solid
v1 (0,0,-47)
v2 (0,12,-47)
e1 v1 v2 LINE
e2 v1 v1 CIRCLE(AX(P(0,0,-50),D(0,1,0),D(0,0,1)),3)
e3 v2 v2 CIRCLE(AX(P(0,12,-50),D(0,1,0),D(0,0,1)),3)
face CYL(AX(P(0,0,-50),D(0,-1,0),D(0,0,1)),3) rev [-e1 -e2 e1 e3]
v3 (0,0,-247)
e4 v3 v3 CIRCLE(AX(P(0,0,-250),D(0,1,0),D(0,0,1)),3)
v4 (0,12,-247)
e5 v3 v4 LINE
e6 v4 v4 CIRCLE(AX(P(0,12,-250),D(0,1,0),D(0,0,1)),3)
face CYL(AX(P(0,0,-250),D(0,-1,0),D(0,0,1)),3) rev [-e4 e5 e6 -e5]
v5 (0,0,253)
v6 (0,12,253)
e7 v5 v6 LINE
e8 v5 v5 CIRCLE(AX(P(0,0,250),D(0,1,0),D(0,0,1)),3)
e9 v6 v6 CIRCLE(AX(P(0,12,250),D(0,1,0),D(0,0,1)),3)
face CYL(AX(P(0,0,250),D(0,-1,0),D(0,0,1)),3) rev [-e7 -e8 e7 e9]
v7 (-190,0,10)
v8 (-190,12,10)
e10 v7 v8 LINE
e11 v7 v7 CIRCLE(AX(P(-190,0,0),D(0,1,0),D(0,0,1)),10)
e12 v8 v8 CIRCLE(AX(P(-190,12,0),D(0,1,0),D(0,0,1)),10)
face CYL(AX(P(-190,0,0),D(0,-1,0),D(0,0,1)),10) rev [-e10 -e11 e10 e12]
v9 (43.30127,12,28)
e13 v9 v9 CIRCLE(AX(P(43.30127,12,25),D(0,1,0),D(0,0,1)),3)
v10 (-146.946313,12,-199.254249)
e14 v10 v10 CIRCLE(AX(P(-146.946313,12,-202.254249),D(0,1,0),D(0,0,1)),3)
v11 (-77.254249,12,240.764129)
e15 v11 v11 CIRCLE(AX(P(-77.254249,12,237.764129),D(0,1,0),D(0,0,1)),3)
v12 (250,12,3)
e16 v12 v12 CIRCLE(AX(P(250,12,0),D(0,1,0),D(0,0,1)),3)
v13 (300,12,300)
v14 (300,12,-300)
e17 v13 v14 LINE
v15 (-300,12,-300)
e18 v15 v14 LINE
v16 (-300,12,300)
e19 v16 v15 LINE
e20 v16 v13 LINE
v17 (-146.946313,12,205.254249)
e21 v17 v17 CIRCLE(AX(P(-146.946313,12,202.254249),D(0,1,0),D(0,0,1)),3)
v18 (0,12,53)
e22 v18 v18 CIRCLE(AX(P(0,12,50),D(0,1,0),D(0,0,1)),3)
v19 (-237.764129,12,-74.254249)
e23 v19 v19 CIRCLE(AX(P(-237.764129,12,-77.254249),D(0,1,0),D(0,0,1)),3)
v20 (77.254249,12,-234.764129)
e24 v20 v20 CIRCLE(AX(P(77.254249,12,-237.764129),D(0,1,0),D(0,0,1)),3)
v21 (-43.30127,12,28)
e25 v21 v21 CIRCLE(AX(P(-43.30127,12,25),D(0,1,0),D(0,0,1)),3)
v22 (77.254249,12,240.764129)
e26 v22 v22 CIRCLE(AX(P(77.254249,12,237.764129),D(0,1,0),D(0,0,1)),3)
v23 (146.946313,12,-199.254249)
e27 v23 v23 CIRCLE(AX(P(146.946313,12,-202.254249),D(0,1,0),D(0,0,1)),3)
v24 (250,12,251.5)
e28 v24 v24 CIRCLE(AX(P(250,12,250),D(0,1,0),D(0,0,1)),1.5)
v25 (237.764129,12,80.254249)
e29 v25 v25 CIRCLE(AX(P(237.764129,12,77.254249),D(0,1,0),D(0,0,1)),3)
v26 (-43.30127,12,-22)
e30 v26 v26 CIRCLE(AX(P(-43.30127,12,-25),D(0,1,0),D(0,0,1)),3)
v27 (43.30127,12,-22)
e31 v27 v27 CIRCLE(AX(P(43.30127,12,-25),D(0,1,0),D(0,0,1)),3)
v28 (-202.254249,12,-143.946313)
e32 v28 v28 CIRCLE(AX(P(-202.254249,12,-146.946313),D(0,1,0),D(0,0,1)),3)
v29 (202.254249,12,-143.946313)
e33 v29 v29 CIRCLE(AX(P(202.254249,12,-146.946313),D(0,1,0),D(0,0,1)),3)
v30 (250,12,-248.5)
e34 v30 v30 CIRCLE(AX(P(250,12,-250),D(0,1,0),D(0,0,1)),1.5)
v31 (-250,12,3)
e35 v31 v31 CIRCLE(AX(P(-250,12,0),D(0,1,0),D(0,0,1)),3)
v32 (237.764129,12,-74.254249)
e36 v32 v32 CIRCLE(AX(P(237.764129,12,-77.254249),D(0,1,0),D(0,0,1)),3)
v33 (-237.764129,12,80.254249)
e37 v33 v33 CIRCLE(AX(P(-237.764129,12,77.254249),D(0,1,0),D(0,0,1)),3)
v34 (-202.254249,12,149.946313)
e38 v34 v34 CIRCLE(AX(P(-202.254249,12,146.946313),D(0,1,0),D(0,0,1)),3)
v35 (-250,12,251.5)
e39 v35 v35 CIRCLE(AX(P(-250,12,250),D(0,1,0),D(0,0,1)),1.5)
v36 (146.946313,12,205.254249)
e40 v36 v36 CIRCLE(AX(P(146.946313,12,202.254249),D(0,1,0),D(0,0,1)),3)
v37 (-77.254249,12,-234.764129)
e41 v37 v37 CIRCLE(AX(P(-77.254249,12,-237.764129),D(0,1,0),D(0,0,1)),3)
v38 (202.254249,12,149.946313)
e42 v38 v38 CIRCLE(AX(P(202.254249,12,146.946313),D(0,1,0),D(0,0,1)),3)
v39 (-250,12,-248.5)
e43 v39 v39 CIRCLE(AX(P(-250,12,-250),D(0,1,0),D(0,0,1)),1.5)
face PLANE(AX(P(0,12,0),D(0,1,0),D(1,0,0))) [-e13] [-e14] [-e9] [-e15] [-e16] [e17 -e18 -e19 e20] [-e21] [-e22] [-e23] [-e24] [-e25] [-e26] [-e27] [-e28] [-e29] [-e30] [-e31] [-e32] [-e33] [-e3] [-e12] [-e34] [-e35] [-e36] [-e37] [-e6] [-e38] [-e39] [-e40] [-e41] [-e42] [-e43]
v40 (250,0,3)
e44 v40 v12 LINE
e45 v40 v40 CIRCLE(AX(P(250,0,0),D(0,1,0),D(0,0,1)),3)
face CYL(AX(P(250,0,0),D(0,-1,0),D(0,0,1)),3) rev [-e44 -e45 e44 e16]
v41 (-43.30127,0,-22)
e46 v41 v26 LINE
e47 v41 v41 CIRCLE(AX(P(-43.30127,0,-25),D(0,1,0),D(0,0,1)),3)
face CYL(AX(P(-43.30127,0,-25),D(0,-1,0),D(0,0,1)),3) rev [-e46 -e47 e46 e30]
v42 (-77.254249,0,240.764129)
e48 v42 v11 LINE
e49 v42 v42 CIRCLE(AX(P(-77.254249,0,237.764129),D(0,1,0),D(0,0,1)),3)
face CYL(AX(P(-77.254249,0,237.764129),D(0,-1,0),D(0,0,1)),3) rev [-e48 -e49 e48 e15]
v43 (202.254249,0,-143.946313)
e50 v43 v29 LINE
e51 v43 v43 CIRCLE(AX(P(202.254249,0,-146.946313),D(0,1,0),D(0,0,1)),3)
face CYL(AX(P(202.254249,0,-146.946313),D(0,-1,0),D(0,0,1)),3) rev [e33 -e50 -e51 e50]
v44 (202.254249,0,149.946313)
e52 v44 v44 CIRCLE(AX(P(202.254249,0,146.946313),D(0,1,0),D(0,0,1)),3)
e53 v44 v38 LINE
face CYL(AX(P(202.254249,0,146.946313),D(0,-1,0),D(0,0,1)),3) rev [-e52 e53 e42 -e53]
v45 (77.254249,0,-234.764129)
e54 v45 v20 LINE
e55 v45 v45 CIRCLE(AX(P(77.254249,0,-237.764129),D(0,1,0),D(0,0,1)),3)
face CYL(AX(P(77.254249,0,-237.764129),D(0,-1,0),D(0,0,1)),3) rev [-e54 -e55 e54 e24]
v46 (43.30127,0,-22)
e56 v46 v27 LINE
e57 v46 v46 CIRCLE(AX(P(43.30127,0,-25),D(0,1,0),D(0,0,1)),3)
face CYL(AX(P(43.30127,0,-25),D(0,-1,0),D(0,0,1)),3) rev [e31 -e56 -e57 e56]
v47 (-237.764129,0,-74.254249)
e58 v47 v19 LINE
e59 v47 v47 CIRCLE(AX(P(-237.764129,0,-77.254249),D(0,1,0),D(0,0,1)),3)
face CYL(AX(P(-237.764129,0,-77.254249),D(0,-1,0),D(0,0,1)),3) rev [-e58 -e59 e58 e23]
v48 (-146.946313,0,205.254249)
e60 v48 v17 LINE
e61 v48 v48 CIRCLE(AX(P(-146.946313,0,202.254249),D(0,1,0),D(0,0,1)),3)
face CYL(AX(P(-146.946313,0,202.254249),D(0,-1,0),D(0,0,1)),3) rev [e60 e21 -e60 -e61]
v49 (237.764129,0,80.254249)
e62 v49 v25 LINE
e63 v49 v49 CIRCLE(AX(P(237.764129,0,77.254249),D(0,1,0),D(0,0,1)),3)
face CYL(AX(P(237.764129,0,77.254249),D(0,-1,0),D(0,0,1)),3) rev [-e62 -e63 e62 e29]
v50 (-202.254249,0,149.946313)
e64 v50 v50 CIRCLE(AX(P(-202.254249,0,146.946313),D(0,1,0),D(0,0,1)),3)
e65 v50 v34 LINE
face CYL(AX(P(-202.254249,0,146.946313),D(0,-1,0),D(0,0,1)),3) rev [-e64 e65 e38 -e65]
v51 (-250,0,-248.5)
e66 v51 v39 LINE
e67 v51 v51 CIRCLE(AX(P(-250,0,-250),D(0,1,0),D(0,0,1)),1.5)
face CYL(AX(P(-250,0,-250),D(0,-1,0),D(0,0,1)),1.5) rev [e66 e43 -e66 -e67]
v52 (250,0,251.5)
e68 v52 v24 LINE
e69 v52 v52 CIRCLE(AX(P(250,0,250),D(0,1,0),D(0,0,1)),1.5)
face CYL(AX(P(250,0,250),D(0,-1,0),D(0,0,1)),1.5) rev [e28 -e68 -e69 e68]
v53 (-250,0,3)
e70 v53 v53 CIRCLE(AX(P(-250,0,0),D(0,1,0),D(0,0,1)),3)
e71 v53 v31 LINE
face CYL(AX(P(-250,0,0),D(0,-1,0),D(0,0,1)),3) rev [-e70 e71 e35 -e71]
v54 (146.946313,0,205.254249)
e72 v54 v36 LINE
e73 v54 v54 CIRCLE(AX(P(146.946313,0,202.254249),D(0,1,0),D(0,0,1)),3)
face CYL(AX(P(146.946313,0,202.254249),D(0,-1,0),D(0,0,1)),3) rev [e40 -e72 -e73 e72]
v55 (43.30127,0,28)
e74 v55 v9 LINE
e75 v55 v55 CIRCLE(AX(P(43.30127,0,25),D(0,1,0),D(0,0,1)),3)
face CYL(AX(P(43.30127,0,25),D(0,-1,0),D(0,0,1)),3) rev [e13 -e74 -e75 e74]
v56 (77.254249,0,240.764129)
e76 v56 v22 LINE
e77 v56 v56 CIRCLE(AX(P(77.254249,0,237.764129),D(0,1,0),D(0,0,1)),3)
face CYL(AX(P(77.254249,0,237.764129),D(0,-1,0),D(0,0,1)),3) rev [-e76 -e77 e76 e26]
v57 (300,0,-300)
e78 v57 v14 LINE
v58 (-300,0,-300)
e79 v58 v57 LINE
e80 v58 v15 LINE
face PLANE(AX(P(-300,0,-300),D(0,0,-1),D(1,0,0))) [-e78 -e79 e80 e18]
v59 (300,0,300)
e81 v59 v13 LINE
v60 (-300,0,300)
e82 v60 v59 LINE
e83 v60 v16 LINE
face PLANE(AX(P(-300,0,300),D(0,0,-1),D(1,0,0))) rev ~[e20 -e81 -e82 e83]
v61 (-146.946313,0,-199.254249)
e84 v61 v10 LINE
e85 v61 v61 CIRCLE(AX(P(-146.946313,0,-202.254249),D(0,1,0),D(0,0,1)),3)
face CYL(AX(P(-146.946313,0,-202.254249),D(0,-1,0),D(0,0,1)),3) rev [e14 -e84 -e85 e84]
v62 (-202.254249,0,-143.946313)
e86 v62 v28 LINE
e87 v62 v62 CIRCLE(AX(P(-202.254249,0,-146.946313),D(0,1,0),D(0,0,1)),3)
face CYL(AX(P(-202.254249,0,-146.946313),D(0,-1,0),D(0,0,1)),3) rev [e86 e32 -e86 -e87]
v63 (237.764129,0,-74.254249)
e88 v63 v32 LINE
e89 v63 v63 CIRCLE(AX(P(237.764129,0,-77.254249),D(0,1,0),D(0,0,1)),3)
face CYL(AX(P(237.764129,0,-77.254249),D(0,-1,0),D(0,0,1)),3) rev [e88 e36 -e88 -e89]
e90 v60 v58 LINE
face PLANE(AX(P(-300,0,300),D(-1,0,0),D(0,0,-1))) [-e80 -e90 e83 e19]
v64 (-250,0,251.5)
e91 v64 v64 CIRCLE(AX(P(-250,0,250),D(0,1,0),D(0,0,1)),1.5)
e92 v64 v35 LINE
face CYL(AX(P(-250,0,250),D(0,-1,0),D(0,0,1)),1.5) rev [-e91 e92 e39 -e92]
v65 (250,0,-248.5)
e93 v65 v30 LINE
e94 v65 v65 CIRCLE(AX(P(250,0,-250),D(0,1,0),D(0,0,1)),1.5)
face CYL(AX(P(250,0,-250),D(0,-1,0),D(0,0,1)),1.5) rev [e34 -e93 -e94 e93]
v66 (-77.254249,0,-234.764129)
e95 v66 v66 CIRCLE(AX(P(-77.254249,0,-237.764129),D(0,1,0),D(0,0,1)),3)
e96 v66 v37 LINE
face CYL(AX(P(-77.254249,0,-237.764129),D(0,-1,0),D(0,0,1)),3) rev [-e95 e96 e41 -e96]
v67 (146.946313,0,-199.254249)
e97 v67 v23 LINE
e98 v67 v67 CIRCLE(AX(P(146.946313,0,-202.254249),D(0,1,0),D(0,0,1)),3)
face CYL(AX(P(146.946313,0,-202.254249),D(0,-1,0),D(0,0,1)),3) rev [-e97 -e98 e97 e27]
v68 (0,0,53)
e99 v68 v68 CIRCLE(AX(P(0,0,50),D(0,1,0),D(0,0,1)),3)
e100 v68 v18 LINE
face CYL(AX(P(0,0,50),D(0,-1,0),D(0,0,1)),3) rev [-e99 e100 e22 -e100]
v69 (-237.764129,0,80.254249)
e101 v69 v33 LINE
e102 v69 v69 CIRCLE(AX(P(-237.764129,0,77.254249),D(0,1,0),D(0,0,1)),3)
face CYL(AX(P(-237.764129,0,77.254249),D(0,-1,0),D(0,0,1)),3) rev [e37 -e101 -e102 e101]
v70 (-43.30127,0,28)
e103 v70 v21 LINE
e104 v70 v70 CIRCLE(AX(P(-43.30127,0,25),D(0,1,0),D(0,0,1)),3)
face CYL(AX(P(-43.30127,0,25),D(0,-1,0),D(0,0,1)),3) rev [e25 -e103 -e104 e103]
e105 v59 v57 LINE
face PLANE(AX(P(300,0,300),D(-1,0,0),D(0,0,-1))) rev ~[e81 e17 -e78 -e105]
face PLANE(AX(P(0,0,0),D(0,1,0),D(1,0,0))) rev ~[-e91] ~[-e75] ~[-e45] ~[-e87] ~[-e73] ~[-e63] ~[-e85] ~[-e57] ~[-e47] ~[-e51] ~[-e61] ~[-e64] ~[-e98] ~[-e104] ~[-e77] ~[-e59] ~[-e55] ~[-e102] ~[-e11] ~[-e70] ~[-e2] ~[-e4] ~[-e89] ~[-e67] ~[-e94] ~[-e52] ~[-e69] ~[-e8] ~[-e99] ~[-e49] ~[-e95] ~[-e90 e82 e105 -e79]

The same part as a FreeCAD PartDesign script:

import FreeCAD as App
import Part
import Sketcher
Q = App.Units.Quantity

doc = App.newDocument("Part")
body = doc.addObject("PartDesign::Body", "Body")

sketch1 = doc.addObject("Sketcher::SketchObject", "Sketch")
body.addObject(sketch1)
sketch1.AttachmentSupport = (doc.XZ_Plane, [""])
sketch1.MapMode = "FlatFace"
sketch1.addGeometry([
    Part.LineSegment(App.Vector(-300, -300, 0), App.Vector(-300, 300, 0)),
    Part.LineSegment(App.Vector(-300, 300, 0), App.Vector(300, 300, 0)),
    Part.LineSegment(App.Vector(300, 300, 0), App.Vector(300, -300, 0)),
    Part.LineSegment(App.Vector(300, -300, 0), App.Vector(-300, -300, 0)),
    Part.Circle(App.Vector(-250, 250, 0), App.Vector(0, 0, 1), 1.5),
    Part.Circle(App.Vector(-146.9, 202.3, 0), App.Vector(0, 0, 1), 3),
    Part.Circle(App.Vector(-202.3, 146.9, 0), App.Vector(0, 0, 1), 3),
    Part.Circle(App.Vector(-77.3, 237.8, 0), App.Vector(0, 0, 1), 3),
    Part.Circle(App.Vector(0, 250, 0), App.Vector(0, 0, 1), 3),
    Part.Circle(App.Vector(-237.8, 77.3, 0), App.Vector(0, 0, 1), 3),
    Part.Circle(App.Vector(-250, 0, 0), App.Vector(0, 0, 1), 3),
    Part.Circle(App.Vector(-190, 0, 0), App.Vector(0, 0, 1), 10),
    Part.Circle(App.Vector(0, 50, 0), App.Vector(0, 0, 1), 3),
    Part.Circle(App.Vector(-43.3, 25, 0), App.Vector(0, 0, 1), 3),
    Part.Circle(App.Vector(77.3, 237.8, 0), App.Vector(0, 0, 1), 3),
    Part.Circle(App.Vector(146.9, 202.3, 0), App.Vector(0, 0, 1), 3),
    Part.Circle(App.Vector(250, 250, 0), App.Vector(0, 0, 1), 1.5),
    Part.Circle(App.Vector(202.3, 146.9, 0), App.Vector(0, 0, 1), 3),
    Part.Circle(App.Vector(43.3, 25, 0), App.Vector(0, 0, 1), 3),
    Part.Circle(App.Vector(237.8, 77.3, 0), App.Vector(0, 0, 1), 3),
    Part.Circle(App.Vector(250, 0, 0), App.Vector(0, 0, 1), 3),
    Part.Circle(App.Vector(-237.8, -77.3, 0), App.Vector(0, 0, 1), 3),
    Part.Circle(App.Vector(-43.3, -25, 0), App.Vector(0, 0, 1), 3),
    Part.Circle(App.Vector(0, -50, 0), App.Vector(0, 0, 1), 3),
    Part.Circle(App.Vector(-202.3, -146.9, 0), App.Vector(0, 0, 1), 3),
    Part.Circle(App.Vector(-250, -250, 0), App.Vector(0, 0, 1), 1.5),
    Part.Circle(App.Vector(-146.9, -202.3, 0), App.Vector(0, 0, 1), 3),
    Part.Circle(App.Vector(-77.3, -237.8, 0), App.Vector(0, 0, 1), 3),
    Part.Circle(App.Vector(0, -250, 0), App.Vector(0, 0, 1), 3),
    Part.Circle(App.Vector(43.3, -25, 0), App.Vector(0, 0, 1), 3),
    Part.Circle(App.Vector(237.8, -77.3, 0), App.Vector(0, 0, 1), 3),
    Part.Circle(App.Vector(77.3, -237.8, 0), App.Vector(0, 0, 1), 3),
    Part.Circle(App.Vector(202.3, -146.9, 0), App.Vector(0, 0, 1), 3),
    Part.Circle(App.Vector(146.9, -202.3, 0), App.Vector(0, 0, 1), 3),
    Part.Circle(App.Vector(250, -250, 0), App.Vector(0, 0, 1), 1.5),
], False)
sketch1.addConstraint([
    Sketcher.Constraint("Coincident", 0, 2, 1, 1),
    Sketcher.Constraint("Coincident", 1, 2, 2, 1),
    Sketcher.Constraint("Coincident", 2, 2, 3, 1),
    Sketcher.Constraint("Coincident", 3, 2, 0, 1),
    Sketcher.Constraint("Vertical", 0),
    Sketcher.Constraint("Horizontal", 1),
    Sketcher.Constraint("Vertical", 2),
    Sketcher.Constraint("Horizontal", 3),
    Sketcher.Constraint("Equal", 5, 6),
    Sketcher.Constraint("Equal", 6, 7),
    Sketcher.Constraint("Equal", 7, 8),
    Sketcher.Constraint("Equal", 8, 9),
    Sketcher.Constraint("Equal", 9, 10),
    Sketcher.Constraint("Equal", 10, 12),
    Sketcher.Constraint("Equal", 12, 13),
    Sketcher.Constraint("Equal", 13, 14),
    Sketcher.Constraint("Equal", 14, 15),
    Sketcher.Constraint("Equal", 4, 16),
    Sketcher.Constraint("Equal", 15, 17),
    Sketcher.Constraint("Equal", 17, 18),
    Sketcher.Constraint("Equal", 18, 19),
    Sketcher.Constraint("Equal", 19, 20),
    Sketcher.Constraint("Equal", 20, 21),
    Sketcher.Constraint("Equal", 21, 22),
    Sketcher.Constraint("Equal", 22, 23),
    Sketcher.Constraint("Equal", 23, 24),
    Sketcher.Constraint("Equal", 16, 25),
    Sketcher.Constraint("Equal", 24, 26),
    Sketcher.Constraint("Equal", 26, 27),
    Sketcher.Constraint("Equal", 27, 28),
    Sketcher.Constraint("Equal", 28, 29),
    Sketcher.Constraint("Equal", 29, 30),
    Sketcher.Constraint("Equal", 30, 31),
    Sketcher.Constraint("Equal", 31, 32),
    Sketcher.Constraint("Equal", 32, 33),
    Sketcher.Constraint("Equal", 25, 34),
    Sketcher.Constraint("Symmetric", 10, 3, 20, 3, -1, 1),
    Sketcher.Constraint("Symmetric", 19, 3, 21, 3, -1, 1),
    Sketcher.Constraint("Symmetric", 18, 3, 22, 3, -1, 1),
    Sketcher.Constraint("Symmetric", 12, 3, 23, 3, -1, 1),
    Sketcher.Constraint("Symmetric", 17, 3, 24, 3, -1, 1),
    Sketcher.Constraint("Symmetric", 16, 3, 25, 3, -1, 1),
    Sketcher.Constraint("Symmetric", 15, 3, 26, 3, -1, 1),
    Sketcher.Constraint("Symmetric", 14, 3, 27, 3, -1, 1),
    Sketcher.Constraint("Symmetric", 8, 3, 28, 3, -1, 1),
    Sketcher.Constraint("Symmetric", 13, 3, 29, 3, -1, 1),
    Sketcher.Constraint("Symmetric", 9, 3, 30, 3, -1, 1),
    Sketcher.Constraint("Symmetric", 7, 3, 31, 3, -1, 1),
    Sketcher.Constraint("Symmetric", 6, 3, 32, 3, -1, 1),
    Sketcher.Constraint("Symmetric", 5, 3, 33, 3, -1, 1),
    Sketcher.Constraint("Symmetric", 4, 3, 34, 3, -1, 1),
    Sketcher.Constraint("Symmetric", 0, 2, 2, 2, -1, 1),
    Sketcher.Constraint("Symmetric", 7, 3, 14, 3, -2),
    Sketcher.Constraint("Symmetric", 5, 3, 15, 3, -2),
    Sketcher.Constraint("Symmetric", 4, 3, 16, 3, -2),
    Sketcher.Constraint("Symmetric", 6, 3, 17, 3, -2),
    Sketcher.Constraint("Symmetric", 13, 3, 18, 3, -2),
    Sketcher.Constraint("Symmetric", 9, 3, 19, 3, -2),
    Sketcher.Constraint("PointOnObject", 8, 3, -2),
    Sketcher.Constraint("PointOnObject", 10, 3, -1),
    Sketcher.Constraint("PointOnObject", 11, 3, -1),
    Sketcher.Constraint("PointOnObject", 12, 3, -2),
    Sketcher.Constraint("Horizontal", 4, 3, 8, 3),
    Sketcher.Constraint("Vertical", 4, 3, 10, 3),
    Sketcher.Constraint("Equal", 3, 0),
    Sketcher.Constraint("Diameter", 4, Q("3 mm")),
    Sketcher.Constraint("Diameter", 5, Q("6 mm")),
    Sketcher.Constraint("Diameter", 11, Q("20 mm")),
    Sketcher.Constraint("DistanceX", 1, 1, 1, 2, Q("600 mm")),
    Sketcher.Constraint("DistanceX", 4, 3, -1, 1, Q("250 mm")),
    Sketcher.Constraint("DistanceY", -1, 1, 4, 3, Q("250 mm")),
    Sketcher.Constraint("DistanceX", 11, 3, -1, 1, Q("190 mm")),
    Sketcher.Constraint("DistanceY", -1, 1, 12, 3, Q("50 mm")),
    Sketcher.Constraint("DistanceY", -1, 1, 13, 3, Q("25 mm")),
    Sketcher.Constraint("DistanceX", 6, 3, 7, 3, Q("125 mm")),
    Sketcher.Constraint("DistanceY", 9, 3, 5, 3, Q("125 mm")),
    Sketcher.Constraint("DistanceY", -1, 1, 5, 3, Q("202.254249 mm")),
    Sketcher.Constraint("DistanceX", 6, 3, -1, 1, Q("202.254249 mm")),
    Sketcher.Constraint("DistanceY", -1, 1, 7, 3, Q("237.764129 mm")),
    Sketcher.Constraint("DistanceX", 9, 3, -1, 1, Q("237.764129 mm")),
    Sketcher.Constraint("DistanceX", 13, 3, -1, 1, Q("43.30127 mm")),
    Sketcher.Constraint("DistanceX", 5, 3, 14, 3, Q("224.200562 mm")),
    Sketcher.Constraint("DistanceY", 21, 3, 6, 3, Q("224.200562 mm")),
])
pad1 = doc.addObject("PartDesign::Pad", "Pad")
body.addObject(pad1)
pad1.Profile = sketch1
pad1.Length = 12
pad1.Reversed = True

doc.recompute()
